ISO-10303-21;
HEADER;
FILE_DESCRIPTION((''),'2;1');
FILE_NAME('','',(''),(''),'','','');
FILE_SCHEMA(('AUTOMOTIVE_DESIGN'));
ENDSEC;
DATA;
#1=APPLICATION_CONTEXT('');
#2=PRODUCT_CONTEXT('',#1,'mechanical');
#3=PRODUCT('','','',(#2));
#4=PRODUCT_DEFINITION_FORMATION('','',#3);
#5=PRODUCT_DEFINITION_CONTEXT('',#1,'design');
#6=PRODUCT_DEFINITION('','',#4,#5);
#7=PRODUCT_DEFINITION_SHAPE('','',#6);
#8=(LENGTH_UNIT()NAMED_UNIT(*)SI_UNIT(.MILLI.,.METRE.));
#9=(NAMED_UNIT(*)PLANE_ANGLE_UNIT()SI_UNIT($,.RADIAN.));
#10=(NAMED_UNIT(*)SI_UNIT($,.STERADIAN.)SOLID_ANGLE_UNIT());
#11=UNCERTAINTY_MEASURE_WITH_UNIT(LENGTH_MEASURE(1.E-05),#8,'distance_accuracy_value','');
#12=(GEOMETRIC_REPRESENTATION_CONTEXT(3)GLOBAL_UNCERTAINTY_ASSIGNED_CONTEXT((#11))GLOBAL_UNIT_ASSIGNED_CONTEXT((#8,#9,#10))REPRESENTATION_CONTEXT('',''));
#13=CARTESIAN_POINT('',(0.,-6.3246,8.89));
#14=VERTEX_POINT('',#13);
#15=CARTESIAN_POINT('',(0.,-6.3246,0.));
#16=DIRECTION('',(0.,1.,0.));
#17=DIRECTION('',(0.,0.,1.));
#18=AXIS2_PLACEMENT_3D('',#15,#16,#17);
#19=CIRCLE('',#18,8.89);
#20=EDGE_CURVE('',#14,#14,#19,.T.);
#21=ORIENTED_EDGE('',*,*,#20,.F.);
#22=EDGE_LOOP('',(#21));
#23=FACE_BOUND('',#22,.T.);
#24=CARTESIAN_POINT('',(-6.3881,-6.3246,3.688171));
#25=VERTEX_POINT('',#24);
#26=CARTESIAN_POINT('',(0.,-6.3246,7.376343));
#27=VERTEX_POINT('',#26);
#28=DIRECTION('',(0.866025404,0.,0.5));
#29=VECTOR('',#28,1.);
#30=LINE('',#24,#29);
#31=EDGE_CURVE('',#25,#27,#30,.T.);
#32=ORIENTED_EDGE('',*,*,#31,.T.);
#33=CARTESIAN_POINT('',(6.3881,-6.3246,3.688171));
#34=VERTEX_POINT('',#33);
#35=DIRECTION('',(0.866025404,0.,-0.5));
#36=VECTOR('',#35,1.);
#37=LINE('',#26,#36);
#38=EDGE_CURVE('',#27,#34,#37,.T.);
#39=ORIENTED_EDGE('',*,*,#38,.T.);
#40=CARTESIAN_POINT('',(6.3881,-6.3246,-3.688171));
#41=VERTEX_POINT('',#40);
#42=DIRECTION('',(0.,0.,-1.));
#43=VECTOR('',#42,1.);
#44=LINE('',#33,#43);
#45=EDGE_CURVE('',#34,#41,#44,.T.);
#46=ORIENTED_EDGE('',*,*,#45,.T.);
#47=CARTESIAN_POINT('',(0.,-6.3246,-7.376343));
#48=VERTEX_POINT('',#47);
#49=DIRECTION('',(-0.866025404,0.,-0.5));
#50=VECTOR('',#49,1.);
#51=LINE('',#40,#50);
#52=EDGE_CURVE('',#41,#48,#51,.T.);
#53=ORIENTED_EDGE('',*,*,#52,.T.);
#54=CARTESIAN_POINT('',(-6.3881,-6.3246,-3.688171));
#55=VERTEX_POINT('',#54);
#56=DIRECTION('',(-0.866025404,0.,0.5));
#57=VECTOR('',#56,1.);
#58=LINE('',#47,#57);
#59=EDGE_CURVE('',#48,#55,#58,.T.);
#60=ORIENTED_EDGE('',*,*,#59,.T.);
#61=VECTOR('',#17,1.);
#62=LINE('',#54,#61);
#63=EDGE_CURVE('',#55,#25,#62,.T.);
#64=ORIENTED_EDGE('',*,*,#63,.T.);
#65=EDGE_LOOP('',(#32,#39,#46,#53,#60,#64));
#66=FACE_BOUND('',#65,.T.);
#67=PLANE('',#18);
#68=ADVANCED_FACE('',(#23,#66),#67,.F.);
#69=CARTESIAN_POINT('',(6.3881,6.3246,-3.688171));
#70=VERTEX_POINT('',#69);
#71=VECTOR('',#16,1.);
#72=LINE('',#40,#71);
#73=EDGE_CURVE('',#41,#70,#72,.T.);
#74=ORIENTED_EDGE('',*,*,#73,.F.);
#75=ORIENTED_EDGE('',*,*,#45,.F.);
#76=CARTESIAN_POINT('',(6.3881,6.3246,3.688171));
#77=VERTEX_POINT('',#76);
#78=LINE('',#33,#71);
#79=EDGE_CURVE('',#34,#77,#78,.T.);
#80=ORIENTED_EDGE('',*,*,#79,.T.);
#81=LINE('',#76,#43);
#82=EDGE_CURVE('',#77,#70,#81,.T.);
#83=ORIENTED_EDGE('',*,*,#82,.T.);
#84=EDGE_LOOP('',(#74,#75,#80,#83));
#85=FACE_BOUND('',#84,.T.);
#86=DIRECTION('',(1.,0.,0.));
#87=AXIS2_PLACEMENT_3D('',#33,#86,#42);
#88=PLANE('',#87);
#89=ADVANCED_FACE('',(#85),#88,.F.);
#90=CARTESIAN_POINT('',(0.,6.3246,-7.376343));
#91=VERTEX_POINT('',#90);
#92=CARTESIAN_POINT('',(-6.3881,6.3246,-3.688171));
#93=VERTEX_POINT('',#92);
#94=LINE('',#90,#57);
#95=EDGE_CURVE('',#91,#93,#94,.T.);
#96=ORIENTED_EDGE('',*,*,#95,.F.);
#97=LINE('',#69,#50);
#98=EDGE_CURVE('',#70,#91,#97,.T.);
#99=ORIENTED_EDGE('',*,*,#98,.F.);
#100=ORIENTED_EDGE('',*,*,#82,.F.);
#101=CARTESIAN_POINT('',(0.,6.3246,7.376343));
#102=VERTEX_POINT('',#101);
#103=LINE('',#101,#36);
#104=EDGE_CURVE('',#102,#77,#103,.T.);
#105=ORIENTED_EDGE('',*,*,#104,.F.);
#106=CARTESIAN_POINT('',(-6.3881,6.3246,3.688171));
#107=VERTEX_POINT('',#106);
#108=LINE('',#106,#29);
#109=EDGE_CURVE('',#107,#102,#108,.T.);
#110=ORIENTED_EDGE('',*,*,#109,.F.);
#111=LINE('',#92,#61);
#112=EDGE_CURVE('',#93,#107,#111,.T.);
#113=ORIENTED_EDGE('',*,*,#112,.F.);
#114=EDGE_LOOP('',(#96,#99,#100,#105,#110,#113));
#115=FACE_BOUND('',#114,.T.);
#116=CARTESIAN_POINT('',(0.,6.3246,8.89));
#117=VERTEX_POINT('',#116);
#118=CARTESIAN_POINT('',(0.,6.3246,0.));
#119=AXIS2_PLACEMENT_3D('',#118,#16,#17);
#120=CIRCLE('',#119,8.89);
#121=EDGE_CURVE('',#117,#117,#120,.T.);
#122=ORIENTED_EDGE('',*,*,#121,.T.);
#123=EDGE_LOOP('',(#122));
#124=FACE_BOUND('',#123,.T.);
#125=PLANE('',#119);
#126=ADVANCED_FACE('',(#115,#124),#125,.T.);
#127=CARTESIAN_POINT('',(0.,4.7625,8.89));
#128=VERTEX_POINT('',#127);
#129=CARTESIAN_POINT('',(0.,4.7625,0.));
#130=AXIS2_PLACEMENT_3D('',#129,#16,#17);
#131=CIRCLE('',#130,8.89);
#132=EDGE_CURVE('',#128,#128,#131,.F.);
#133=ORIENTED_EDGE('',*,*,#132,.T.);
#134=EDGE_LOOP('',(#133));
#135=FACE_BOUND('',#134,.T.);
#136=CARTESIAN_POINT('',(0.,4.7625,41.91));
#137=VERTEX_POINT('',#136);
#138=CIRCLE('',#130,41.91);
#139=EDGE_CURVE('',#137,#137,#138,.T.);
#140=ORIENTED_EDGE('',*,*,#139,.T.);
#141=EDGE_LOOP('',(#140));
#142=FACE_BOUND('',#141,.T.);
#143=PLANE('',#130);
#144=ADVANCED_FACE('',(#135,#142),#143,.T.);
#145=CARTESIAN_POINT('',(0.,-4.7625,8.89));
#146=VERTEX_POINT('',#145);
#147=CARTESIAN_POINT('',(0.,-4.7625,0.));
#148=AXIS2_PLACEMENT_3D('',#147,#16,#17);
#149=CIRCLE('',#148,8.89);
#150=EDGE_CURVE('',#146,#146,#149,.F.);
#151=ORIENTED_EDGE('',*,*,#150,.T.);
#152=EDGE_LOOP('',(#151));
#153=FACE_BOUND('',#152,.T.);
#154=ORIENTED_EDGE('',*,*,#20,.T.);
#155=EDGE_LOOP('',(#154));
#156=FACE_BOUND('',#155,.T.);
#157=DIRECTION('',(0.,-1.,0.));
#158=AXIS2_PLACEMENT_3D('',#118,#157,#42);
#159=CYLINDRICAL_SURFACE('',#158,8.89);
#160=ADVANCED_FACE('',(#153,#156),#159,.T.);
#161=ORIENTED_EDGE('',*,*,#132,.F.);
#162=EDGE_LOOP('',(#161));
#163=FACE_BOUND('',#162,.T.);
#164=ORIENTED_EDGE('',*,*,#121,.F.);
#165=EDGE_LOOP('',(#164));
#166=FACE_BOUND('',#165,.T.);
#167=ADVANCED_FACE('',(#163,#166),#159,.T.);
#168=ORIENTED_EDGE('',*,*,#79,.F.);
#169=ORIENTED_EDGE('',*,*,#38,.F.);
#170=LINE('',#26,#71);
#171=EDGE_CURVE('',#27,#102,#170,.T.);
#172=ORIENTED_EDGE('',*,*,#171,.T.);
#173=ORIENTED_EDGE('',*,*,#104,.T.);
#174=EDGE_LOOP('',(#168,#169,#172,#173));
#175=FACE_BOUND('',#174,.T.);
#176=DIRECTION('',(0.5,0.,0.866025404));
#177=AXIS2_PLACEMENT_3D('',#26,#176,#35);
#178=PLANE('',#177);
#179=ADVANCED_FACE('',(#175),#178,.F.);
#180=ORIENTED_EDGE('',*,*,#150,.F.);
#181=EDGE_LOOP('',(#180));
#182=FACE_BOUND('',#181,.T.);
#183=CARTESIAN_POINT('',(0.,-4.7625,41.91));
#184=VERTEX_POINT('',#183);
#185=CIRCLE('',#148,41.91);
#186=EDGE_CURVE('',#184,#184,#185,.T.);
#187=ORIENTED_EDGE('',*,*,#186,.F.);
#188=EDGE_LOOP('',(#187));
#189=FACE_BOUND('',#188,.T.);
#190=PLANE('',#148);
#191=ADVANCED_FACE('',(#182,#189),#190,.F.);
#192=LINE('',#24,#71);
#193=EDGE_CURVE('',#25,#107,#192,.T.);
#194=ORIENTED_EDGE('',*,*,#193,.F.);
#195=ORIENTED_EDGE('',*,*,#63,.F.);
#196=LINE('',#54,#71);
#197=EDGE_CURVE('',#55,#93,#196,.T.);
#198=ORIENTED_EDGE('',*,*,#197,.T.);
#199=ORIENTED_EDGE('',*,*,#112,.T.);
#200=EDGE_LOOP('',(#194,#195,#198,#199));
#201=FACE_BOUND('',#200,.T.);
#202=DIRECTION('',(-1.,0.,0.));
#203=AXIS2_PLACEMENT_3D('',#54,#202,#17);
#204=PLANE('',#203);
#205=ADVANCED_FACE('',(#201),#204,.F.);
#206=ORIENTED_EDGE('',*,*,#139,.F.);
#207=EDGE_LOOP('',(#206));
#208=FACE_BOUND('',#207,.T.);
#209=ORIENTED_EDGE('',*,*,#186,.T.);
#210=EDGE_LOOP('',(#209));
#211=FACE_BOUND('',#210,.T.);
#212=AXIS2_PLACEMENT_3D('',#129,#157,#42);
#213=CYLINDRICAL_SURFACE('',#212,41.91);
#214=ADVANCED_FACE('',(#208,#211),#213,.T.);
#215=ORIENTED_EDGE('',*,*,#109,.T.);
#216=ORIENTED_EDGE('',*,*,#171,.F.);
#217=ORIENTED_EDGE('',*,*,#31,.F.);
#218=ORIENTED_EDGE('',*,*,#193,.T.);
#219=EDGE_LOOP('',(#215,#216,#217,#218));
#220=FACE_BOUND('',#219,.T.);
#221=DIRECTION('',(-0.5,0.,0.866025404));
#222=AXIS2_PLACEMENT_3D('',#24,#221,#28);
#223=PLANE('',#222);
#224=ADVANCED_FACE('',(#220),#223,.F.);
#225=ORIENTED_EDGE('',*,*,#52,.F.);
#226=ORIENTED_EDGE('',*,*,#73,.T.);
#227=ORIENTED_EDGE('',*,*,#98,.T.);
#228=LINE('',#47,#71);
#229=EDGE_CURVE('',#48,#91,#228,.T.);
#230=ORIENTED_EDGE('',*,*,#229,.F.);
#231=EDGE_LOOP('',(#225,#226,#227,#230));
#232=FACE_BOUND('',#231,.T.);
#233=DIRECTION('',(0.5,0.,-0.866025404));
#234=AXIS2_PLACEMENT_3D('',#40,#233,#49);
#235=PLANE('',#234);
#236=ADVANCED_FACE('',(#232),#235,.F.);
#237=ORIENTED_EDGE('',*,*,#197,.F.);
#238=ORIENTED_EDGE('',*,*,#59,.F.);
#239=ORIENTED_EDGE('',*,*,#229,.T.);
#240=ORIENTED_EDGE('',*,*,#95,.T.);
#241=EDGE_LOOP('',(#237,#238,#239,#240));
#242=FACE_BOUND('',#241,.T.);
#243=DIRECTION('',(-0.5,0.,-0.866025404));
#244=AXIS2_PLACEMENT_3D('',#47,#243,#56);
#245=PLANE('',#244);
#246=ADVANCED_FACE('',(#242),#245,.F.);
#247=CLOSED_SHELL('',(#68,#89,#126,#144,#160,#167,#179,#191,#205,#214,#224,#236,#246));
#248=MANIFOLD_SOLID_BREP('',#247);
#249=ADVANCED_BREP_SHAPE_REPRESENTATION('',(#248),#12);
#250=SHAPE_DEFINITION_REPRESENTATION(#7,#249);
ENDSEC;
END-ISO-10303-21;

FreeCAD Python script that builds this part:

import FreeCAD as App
import Part
import Sketcher
from FreeCAD import Vector
Q = App.Units.Quantity

doc = App.newDocument("Part")
params = doc.addObject("Spreadsheet::Sheet", "Params")
for row, (alias, value) in enumerate([
    ("sketch1_diameter", "3.3 in"),
    ("pad1_length", "0.375 in"),
    ("sketch2_diameter", "0.7 in"),
    ("pad2_length", "0.498 in"),
], start=1):
    params.set(f"A{row}", alias)
    params.set(f"B{row}", "=" + value)
    params.setAlias(f"B{row}", alias)

body = doc.addObject("PartDesign::Body", "Body")

sketch1 = doc.addObject("Sketcher::SketchObject", "Sketch")
body.addObject(sketch1)
sketch1.AttachmentSupport = (doc.XZ_Plane, [""])
sketch1.MapMode = "FlatFace"
sketch1.addGeometry(Part.Circle(Vector(0, 0, 0), Vector(0, 0, 1), 41.91), False)
sketch1.addConstraint([
    Sketcher.Constraint("Coincident", 0, 3, -1, 1),
    Sketcher.Constraint("Diameter", 0, Q("3.3 in")),
])
sketch1.setExpression("Constraints[1]", "Params.sketch1_diameter")
pad1 = doc.addObject("PartDesign::Pad", "Pad")
body.addObject(pad1)
pad1.Profile = sketch1
pad1.setExpression("Length", "Params.pad1_length")
pad1.Midplane = True

sketch2 = doc.addObject("Sketcher::SketchObject", "Sketch001")
body.addObject(sketch2)
sketch2.AttachmentSupport = (doc.XZ_Plane, [""])
sketch2.MapMode = "FlatFace"
sketch2.addGeometry(Part.Circle(Vector(0, 0, 0), Vector(0, 0, 1), 8.89), False)
sketch2.addConstraint([
    Sketcher.Constraint("Coincident", 0, 3, -1, 1),
    Sketcher.Constraint("Diameter", 0, Q("0.7 in")),
])
sketch2.setExpression("Constraints[1]", "Params.sketch2_diameter")
pad2 = doc.addObject("PartDesign::Pad", "Pad001")
body.addObject(pad2)
pad2.Profile = sketch2
pad2.setExpression("Length", "Params.pad2_length")
pad2.Midplane = True

sketch3 = doc.addObject("Sketcher::SketchObject", "Sketch002")
body.addObject(sketch3)
sketch3.AttachmentSupport = (doc.XZ_Plane, [""])
sketch3.MapMode = "FlatFace"
sketch3.AttachmentOffset = App.Placement(Vector(0, 0, -0.249 * 25.4), App.Rotation())
sketch3.addGeometry([
    Part.LineSegment(Vector(0, -7.376343, 0), Vector(-6.3881, -3.688171, 0)),
    Part.LineSegment(Vector(-6.3881, -3.688171, 0), Vector(-6.3881, 3.688171, 0)),
    Part.LineSegment(Vector(-6.3881, 3.688171, 0), Vector(0, 7.376343, 0)),
    Part.LineSegment(Vector(0, 7.376343, 0), Vector(6.3881, 3.688171, 0)),
    Part.LineSegment(Vector(6.3881, 3.688171, 0), Vector(6.3881, -3.688171, 0)),
    Part.LineSegment(Vector(6.3881, -3.688171, 0), Vector(0, -7.376343, 0)),
], False)
sketch3.addConstraint([
    Sketcher.Constraint("Coincident", 0, 2, 1, 1),
    Sketcher.Constraint("Coincident", 1, 2, 2, 1),
    Sketcher.Constraint("Coincident", 2, 2, 3, 1),
    Sketcher.Constraint("Coincident", 3, 2, 4, 1),
    Sketcher.Constraint("Coincident", 4, 2, 5, 1),
    Sketcher.Constraint("Coincident", 5, 2, 0, 1),
    Sketcher.Constraint("Vertical", 1),
    Sketcher.Constraint("Vertical", 4),
    Sketcher.Constraint("Symmetric", 0, 2, 3, 2, -1, 1),
    Sketcher.Constraint("Symmetric", 2, 2, 5, 2, -1, 1),
    Sketcher.Constraint("PointOnObject", 2, 2, -2),
    Sketcher.Constraint("Parallel", 2, 5),
    Sketcher.Constraint("Horizontal", 1, 2, 3, 2),
    Sketcher.Constraint("Angle", 0, Q("150 deg")),
    Sketcher.Constraint("DistanceX", 1, 2, 3, 2, Q("0.503 in")),
    Sketcher.Constraint("DistanceY", 1, 1, 1, 2, Q("7.376343 mm")),
])
pocket1 = doc.addObject("PartDesign::Pocket", "Pocket")
body.addObject(pocket1)
pocket1.Profile = sketch3
pocket1.Type = "ThroughAll"
pocket1.Reversed = True

doc.recompute()
